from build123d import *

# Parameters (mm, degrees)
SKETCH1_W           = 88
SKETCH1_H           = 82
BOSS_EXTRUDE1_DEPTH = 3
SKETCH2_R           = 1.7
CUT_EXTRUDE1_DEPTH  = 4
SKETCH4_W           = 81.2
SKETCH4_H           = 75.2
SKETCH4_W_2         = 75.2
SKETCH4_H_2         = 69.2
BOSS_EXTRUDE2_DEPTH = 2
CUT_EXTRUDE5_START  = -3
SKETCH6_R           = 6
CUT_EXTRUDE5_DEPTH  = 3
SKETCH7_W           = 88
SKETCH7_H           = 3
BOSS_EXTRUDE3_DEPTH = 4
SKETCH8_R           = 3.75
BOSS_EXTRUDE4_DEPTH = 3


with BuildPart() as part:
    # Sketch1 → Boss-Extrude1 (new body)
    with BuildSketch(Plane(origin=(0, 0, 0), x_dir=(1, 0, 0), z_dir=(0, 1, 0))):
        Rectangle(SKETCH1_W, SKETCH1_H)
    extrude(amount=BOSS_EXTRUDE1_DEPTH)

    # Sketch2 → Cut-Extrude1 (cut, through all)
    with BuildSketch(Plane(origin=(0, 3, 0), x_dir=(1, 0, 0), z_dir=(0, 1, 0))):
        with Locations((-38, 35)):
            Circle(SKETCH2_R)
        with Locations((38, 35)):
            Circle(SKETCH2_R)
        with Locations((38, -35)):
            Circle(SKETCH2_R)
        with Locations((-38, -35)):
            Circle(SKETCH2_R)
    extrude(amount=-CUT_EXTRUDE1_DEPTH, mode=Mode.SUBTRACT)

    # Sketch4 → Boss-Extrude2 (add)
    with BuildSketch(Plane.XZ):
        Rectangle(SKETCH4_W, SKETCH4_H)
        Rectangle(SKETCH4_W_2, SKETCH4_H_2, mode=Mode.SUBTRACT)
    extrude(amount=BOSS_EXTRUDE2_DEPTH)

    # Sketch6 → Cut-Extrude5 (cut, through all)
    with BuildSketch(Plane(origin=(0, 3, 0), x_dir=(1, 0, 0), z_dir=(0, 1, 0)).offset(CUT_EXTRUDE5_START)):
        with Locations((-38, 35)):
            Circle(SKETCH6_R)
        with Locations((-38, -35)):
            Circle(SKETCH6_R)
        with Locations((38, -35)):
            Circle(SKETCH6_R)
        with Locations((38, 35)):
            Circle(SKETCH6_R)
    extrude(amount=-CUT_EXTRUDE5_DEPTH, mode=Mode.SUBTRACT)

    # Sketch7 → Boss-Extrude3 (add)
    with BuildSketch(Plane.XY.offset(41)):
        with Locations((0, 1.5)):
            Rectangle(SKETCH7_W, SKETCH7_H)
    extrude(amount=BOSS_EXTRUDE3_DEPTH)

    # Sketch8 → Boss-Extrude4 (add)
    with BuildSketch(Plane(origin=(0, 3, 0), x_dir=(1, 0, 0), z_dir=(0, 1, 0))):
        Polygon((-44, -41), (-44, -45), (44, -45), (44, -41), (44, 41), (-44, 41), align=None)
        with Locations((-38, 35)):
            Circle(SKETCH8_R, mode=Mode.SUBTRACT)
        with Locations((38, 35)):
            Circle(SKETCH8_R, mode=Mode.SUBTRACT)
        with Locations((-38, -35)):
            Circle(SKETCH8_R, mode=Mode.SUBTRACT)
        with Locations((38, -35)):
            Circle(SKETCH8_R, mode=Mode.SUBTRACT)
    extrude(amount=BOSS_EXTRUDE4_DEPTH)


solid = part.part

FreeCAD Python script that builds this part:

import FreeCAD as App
import Part
import Sketcher

V = App.Vector
Q = App.Units.Quantity

doc = App.newDocument("Part")
body = doc.addObject("PartDesign::Body", "Body")

# Sketch on XZ plane
sketch1 = body.newObject("Sketcher::SketchObject", "Sketch")
sketch1.AttachmentSupport = (doc.getObject("XZ_Plane"), [""])
sketch1.MapMode = "FlatFace"
sketch1.addGeometry([
    Part.LineSegment(V(-44, -41, 0), V(-44, 41, 0)),
    Part.LineSegment(V(-44, 41, 0), V(44, 41, 0)),
    Part.LineSegment(V(44, 41, 0), V(44, -41, 0)),
    Part.LineSegment(V(44, -41, 0), V(-44, -41, 0)),
], False)
sketch1.addConstraint([
    Sketcher.Constraint("Coincident", 0, 2, 1, 1),
    Sketcher.Constraint("Coincident", 1, 2, 2, 1),
    Sketcher.Constraint("Coincident", 2, 2, 3, 1),
    Sketcher.Constraint("Coincident", 3, 2, 0, 1),
    Sketcher.Constraint("Vertical", 0),
    Sketcher.Constraint("Horizontal", 1),
    Sketcher.Constraint("Vertical", 2),
    Sketcher.Constraint("Horizontal", 3),
    Sketcher.Constraint("Symmetric", 0, 2, 2, 2, -1, 1),
    Sketcher.Constraint("DistanceX", 1, 1, 1, 2, Q("88 mm")),
    Sketcher.Constraint("DistanceY", 0, 1, 0, 2, Q("82 mm")),
])
pad1 = body.newObject("PartDesign::Pad", "Pad")
pad1.Profile = sketch1
pad1.Length = 3
pad1.Reversed = True

# Sketch on XZ plane
sketch2 = body.newObject("Sketcher::SketchObject", "Sketch001")
sketch2.AttachmentSupport = (doc.getObject("XZ_Plane"), [""])
sketch2.MapMode = "FlatFace"
sketch2.AttachmentOffset = App.Placement(V(0, 0, -3), App.Rotation())
sketch2.addGeometry([
    Part.Circle(V(-38, -35, 0), V(0, 0, 1), 1.7),
    Part.Circle(V(38, -35, 0), V(0, 0, 1), 1.7),
    Part.Circle(V(38, 35, 0), V(0, 0, 1), 1.7),
    Part.Circle(V(-38, 35, 0), V(0, 0, 1), 1.7),
], False)
sketch2.addConstraint([
    Sketcher.Constraint("Equal", 0, 1),
    Sketcher.Constraint("Equal", 1, 2),
    Sketcher.Constraint("Equal", 2, 3),
    Sketcher.Constraint("Symmetric", 0, 3, 2, 3, -1, 1),
    Sketcher.Constraint("Symmetric", 1, 3, 3, 3, -1, 1),
    Sketcher.Constraint("Symmetric", 0, 3, 1, 3, -2),
    Sketcher.Constraint("Diameter", 0, Q("3.4 mm")),
    Sketcher.Constraint("DistanceX", 0, 3, -1, 1, Q("38 mm")),
    Sketcher.Constraint("DistanceY", 0, 3, -1, 1, Q("35 mm")),
])
pocket1 = body.newObject("PartDesign::Pocket", "Pocket")
pocket1.Profile = sketch2
pocket1.Type = "ThroughAll"
pocket1.Reversed = True

# Sketch on XZ plane
sketch3 = body.newObject("Sketcher::SketchObject", "Sketch002")
sketch3.AttachmentSupport = (doc.getObject("XZ_Plane"), [""])
sketch3.MapMode = "FlatFace"
sketch3.addGeometry([
    Part.LineSegment(V(-41, 38, 0), V(-41, -38, 0)),  # 0
    Part.LineSegment(V(-41, -38, 0), V(41, -38, 0)),  # 1
    Part.LineSegment(V(41, -38, 0), V(41, 38, 0)),  # 2
    Part.LineSegment(V(41, 38, 0), V(-41, 38, 0)),  # 3
    Part.LineSegment(V(38, -35, 0), V(-38, -35, 0)),  # 4
    Part.LineSegment(V(-38, -35, 0), V(-38, 35, 0)),  # 5
    Part.LineSegment(V(-38, 35, 0), V(38, 35, 0)),  # 6
    Part.LineSegment(V(38, 35, 0), V(38, -35, 0)),  # 7
], False)
sketch3.addConstraint([
    Sketcher.Constraint("Coincident", 0, 2, 1, 1),
    Sketcher.Constraint("Coincident", 1, 2, 2, 1),
    Sketcher.Constraint("Coincident", 2, 2, 3, 1),
    Sketcher.Constraint("Coincident", 3, 2, 0, 1),
    Sketcher.Constraint("Coincident", 4, 2, 5, 1),
    Sketcher.Constraint("Coincident", 5, 2, 6, 1),
    Sketcher.Constraint("Coincident", 6, 2, 7, 1),
    Sketcher.Constraint("Coincident", 7, 2, 4, 1),
    Sketcher.Constraint("Vertical", 0),
    Sketcher.Constraint("Horizontal", 1),
    Sketcher.Constraint("Vertical", 2),
    Sketcher.Constraint("Horizontal", 3),
    Sketcher.Constraint("Horizontal", 4),
    Sketcher.Constraint("Vertical", 5),
    Sketcher.Constraint("Horizontal", 6),
    Sketcher.Constraint("Vertical", 7),
    Sketcher.Constraint("Symmetric", 0, 2, 2, 2, -1, 1),
    Sketcher.Constraint("Symmetric", 4, 2, 6, 2, -1, 1),
    Sketcher.Constraint("Equal", 6, 0),
    Sketcher.Constraint("DistanceX", 1, 1, 1, 2, Q("81.2 mm")),
    Sketcher.Constraint("DistanceX", 4, 2, 4, 1, Q("75.2 mm")),
    Sketcher.Constraint("DistanceY", 5, 1, 5, 2, Q("69.2 mm")),
])
pad2 = body.newObject("PartDesign::Pad", "Pad001")
pad2.Profile = sketch3
pad2.Length = 2

# Sketch on XZ plane
sketch4 = body.newObject("Sketcher::SketchObject", "Sketch003")
sketch4.AttachmentSupport = (doc.getObject("XZ_Plane"), [""])
sketch4.MapMode = "FlatFace"
sketch4.addGeometry([
    Part.Circle(V(-38, -35, 0), V(0, 0, 1), 6),
    Part.Circle(V(-38, 35, 0), V(0, 0, 1), 6),
    Part.Circle(V(38, 35, 0), V(0, 0, 1), 6),
    Part.Circle(V(38, -35, 0), V(0, 0, 1), 6),
], False)
sketch4.addConstraint([
    Sketcher.Constraint("Equal", 0, 1),
    Sketcher.Constraint("Equal", 1, 2),
    Sketcher.Constraint("Equal", 2, 3),
    Sketcher.Constraint("Symmetric", 0, 3, 2, 3, -1, 1),
    Sketcher.Constraint("Symmetric", 1, 3, 3, 3, -1, 1),
    Sketcher.Constraint("Symmetric", 1, 3, 2, 3, -2),
    Sketcher.Constraint("Diameter", 0, Q("12 mm")),
    Sketcher.Constraint("DistanceX", 0, 3, -1, 1, Q("38 mm")),
    Sketcher.Constraint("DistanceY", 0, 3, -1, 1, Q("35 mm")),
])
pocket2 = body.newObject("PartDesign::Pocket", "Pocket001")
pocket2.Profile = sketch4
pocket2.Type = "ThroughAll"
pocket2.Reversed = True

# Sketch on XY plane
sketch5 = body.newObject("Sketcher::SketchObject", "Sketch004")
sketch5.AttachmentSupport = (doc.getObject("XY_Plane"), [""])
sketch5.MapMode = "FlatFace"
sketch5.AttachmentOffset = App.Placement(V(0, 0, 41), App.Rotation())
sketch5.addGeometry([
    Part.LineSegment(V(-44, 3, 0), V(-44, 0, 0)),
    Part.LineSegment(V(-44, 0, 0), V(44, 0, 0)),
    Part.LineSegment(V(44, 0, 0), V(44, 3, 0)),
    Part.LineSegment(V(44, 3, 0), V(-44, 3, 0)),
], False)
sketch5.addConstraint([
    Sketcher.Constraint("Coincident", 0, 2, 1, 1),
    Sketcher.Constraint("Coincident", 1, 2, 2, 1),
    Sketcher.Constraint("Coincident", 2, 2, 3, 1),
    Sketcher.Constraint("Coincident", 3, 2, 0, 1),
    Sketcher.Constraint("Vertical", 0),
    Sketcher.Constraint("Horizontal", 1),
    Sketcher.Constraint("Vertical", 2),
    Sketcher.Constraint("Horizontal", 3),
    Sketcher.Constraint("Symmetric", 0, 2, 1, 2, -1, 1),
    Sketcher.Constraint("DistanceX", 1, 1, 1, 2, Q("88 mm")),
    Sketcher.Constraint("DistanceY", 0, 2, 0, 1, Q("3 mm")),
])
pad3 = body.newObject("PartDesign::Pad", "Pad002")
pad3.Profile = sketch5
pad3.Length = 4

# Sketch on XZ plane
sketch6 = body.newObject("Sketcher::SketchObject", "Sketch005")
sketch6.AttachmentSupport = (doc.getObject("XZ_Plane"), [""])
sketch6.MapMode = "FlatFace"
sketch6.AttachmentOffset = App.Placement(V(0, 0, -3), App.Rotation())
sketch6.addGeometry([
    Part.LineSegment(V(-44, 45, 0), V(44, 45, 0)),  # 0
    Part.LineSegment(V(44, 45, 0), V(44, -41, 0)),  # 1
    Part.LineSegment(V(44, -41, 0), V(-44, -41, 0)),  # 2
    Part.LineSegment(V(-44, -41, 0), V(-44, 45, 0)),  # 3
    Part.Circle(V(-38, 35, 0), V(0, 0, 1), 3.8),  # 4
    Part.Circle(V(38, 35, 0), V(0, 0, 1), 3.8),  # 5
    Part.Circle(V(-38, -35, 0), V(0, 0, 1), 3.8),  # 6
    Part.Circle(V(38, -35, 0), V(0, 0, 1), 3.8),  # 7
], False)
sketch6.addConstraint([
    Sketcher.Constraint("Coincident", 0, 2, 1, 1),
    Sketcher.Constraint("Coincident", 1, 2, 2, 1),
    Sketcher.Constraint("Coincident", 2, 2, 3, 1),
    Sketcher.Constraint("Coincident", 3, 2, 0, 1),
    Sketcher.Constraint("Horizontal", 0),
    Sketcher.Constraint("Vertical", 1),
    Sketcher.Constraint("Horizontal", 2),
    Sketcher.Constraint("Vertical", 3),
    Sketcher.Constraint("Equal", 4, 5),
    Sketcher.Constraint("Equal", 5, 6),
    Sketcher.Constraint("Equal", 6, 7),
    Sketcher.Constraint("Symmetric", 5, 3, 6, 3, -1, 1),
    Sketcher.Constraint("Symmetric", 4, 3, 7, 3, -1, 1),
    Sketcher.Constraint("Symmetric", 4, 3, 5, 3, -2),
    Sketcher.Constraint("Diameter", 4, Q("7.5 mm")),
    Sketcher.Constraint("DistanceX", 0, 1, 0, 2, Q("88 mm")),
    Sketcher.Constraint("DistanceY", 1, 2, 1, 1, Q("86 mm")),
    Sketcher.Constraint("DistanceX", 4, 3, -1, 1, Q("38 mm")),
    Sketcher.Constraint("DistanceY", -1, 1, 4, 3, Q("35 mm")),
    Sketcher.Constraint("DistanceX", -1, 1, 0, 2, Q("44 mm")),
    Sketcher.Constraint("DistanceY", -1, 1, 0, 2, Q("45 mm")),
])
pad4 = body.newObject("PartDesign::Pad", "Pad003")
pad4.Profile = sketch6
pad4.Length = 3
pad4.Reversed = True

doc.recompute()
